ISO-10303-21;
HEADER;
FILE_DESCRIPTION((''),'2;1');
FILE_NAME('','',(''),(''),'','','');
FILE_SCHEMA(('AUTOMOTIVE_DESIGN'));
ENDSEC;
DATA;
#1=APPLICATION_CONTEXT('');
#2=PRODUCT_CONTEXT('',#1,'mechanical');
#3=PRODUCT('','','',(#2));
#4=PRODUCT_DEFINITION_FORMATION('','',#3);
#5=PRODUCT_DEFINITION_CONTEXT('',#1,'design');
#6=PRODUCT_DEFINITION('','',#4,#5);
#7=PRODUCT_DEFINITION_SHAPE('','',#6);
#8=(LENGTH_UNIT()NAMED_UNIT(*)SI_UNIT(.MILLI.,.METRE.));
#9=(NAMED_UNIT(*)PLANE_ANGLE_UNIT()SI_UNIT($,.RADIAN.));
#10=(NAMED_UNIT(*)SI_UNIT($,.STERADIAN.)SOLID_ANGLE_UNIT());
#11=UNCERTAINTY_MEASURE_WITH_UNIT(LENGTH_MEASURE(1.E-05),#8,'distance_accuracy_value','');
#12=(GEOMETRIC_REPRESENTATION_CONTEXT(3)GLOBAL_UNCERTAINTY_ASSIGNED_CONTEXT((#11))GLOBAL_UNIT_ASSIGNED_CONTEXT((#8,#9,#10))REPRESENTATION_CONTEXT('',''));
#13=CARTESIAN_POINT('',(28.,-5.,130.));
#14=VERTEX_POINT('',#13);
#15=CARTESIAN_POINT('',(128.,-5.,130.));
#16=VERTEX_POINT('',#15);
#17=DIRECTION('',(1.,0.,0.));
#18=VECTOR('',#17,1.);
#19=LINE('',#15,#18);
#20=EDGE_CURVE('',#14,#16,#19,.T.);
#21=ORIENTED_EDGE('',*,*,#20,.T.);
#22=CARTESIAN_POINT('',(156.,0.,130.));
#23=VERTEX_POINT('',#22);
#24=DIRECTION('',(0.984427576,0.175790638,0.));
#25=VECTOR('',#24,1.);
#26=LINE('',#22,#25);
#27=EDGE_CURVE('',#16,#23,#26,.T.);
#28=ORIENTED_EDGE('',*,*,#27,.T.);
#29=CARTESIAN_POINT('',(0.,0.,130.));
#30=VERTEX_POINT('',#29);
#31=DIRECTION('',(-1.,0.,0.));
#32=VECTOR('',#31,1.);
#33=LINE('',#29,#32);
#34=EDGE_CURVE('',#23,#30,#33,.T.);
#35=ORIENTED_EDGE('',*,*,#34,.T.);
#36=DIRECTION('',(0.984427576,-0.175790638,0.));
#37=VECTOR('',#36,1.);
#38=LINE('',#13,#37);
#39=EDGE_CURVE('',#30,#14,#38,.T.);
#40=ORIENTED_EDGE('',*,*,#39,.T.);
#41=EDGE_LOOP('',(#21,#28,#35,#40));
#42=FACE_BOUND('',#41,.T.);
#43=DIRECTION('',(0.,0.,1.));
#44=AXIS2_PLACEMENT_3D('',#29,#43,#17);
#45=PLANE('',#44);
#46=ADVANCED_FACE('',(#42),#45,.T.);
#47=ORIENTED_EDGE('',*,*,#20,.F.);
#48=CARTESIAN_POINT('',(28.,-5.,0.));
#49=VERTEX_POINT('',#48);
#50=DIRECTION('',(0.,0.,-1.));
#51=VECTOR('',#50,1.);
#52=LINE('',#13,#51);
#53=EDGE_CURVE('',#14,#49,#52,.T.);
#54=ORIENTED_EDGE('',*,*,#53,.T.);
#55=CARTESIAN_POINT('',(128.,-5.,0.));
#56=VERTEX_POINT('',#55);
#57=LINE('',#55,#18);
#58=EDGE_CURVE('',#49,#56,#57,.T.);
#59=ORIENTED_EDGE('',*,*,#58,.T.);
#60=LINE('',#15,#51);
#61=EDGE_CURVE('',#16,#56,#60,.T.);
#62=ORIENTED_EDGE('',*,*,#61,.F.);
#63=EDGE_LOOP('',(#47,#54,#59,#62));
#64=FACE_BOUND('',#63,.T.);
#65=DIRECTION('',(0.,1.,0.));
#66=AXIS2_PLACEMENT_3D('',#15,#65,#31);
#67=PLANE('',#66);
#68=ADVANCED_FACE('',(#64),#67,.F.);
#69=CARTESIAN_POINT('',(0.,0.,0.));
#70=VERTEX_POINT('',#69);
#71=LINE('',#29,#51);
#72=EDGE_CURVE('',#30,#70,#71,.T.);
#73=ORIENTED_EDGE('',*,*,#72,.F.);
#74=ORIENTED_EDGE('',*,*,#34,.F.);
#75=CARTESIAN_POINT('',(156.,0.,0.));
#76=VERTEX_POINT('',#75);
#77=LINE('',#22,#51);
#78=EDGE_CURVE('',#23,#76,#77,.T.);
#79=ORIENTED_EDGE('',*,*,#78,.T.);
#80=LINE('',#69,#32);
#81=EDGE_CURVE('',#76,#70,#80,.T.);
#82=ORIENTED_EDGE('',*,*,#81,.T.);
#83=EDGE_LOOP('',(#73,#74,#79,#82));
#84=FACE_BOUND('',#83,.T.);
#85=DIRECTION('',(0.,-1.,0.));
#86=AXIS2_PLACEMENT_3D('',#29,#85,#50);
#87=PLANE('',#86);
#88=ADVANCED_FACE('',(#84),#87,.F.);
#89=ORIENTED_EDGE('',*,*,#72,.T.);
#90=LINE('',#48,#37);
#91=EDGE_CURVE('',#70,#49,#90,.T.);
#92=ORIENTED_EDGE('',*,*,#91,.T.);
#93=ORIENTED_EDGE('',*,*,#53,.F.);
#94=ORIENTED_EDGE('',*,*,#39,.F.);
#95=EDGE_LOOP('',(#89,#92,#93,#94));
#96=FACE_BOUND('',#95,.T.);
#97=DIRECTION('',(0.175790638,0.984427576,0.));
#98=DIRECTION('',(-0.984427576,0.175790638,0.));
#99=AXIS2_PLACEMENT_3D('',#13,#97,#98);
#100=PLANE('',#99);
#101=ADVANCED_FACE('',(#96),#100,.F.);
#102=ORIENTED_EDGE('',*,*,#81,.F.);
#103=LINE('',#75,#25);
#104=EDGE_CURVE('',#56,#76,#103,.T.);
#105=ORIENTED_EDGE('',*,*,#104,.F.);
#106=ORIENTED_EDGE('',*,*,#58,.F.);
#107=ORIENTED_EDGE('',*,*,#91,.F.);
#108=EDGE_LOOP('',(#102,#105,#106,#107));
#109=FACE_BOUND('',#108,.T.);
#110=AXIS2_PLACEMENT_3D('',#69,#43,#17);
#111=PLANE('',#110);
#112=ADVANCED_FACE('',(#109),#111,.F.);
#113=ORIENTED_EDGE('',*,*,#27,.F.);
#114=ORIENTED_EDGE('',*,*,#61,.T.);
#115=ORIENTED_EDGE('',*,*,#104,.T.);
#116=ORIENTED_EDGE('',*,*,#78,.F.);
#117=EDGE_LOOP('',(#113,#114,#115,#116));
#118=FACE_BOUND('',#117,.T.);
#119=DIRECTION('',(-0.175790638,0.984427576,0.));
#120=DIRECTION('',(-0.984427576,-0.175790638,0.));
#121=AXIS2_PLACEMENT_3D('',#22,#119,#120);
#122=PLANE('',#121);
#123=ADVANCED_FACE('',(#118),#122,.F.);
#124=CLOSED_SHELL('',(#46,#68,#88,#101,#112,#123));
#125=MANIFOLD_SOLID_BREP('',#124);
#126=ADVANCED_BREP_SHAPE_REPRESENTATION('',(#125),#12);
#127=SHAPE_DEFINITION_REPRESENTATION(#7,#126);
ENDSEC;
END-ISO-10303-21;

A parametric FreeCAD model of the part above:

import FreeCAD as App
import Part
import Sketcher


def add_polygon(sketch, points):
    """Adds a closed chain of lines whose ends are joined by coincident constraints."""
    first, n = sketch.GeometryCount, len(points)
    for a, b in zip(points, points[1:] + points[:1]):
        sketch.addGeometry(Part.LineSegment(App.Vector(*a, 0), App.Vector(*b, 0)), False)
    for i in range(n):
        sketch.addConstraint(Sketcher.Constraint("Coincident", first + i, 2, first + (i + 1) % n, 1))

doc = App.newDocument("Part")
body = doc.addObject("PartDesign::Body", "Body")

sketch1 = body.newObject("Sketcher::SketchObject", "Sketch")
sketch1.AttachmentSupport = (doc.getObject("XY_Plane"), [""])
sketch1.MapMode = "FlatFace"
add_polygon(sketch1, [(156, 0), (0, 0), (28, -5), (128, -5)])
sketch1.addConstraint([
    Sketcher.Constraint("Horizontal", 0),
    Sketcher.Constraint("Horizontal", 2),
    Sketcher.Constraint("Coincident", 0, 2, -1, 1),
    Sketcher.Constraint("Equal", 1, 3),
    Sketcher.Constraint("DistanceX", 0, 2, 0, 1, 156.0),
    Sketcher.Constraint("DistanceX", 2, 1, 2, 2, 100.0),
    Sketcher.Constraint("DistanceY", 1, 2, -1, 1, 5.0),
])
pad1 = body.newObject("PartDesign::Pad", "Pad")
pad1.Profile = sketch1
pad1.Length = 130

doc.recompute()
